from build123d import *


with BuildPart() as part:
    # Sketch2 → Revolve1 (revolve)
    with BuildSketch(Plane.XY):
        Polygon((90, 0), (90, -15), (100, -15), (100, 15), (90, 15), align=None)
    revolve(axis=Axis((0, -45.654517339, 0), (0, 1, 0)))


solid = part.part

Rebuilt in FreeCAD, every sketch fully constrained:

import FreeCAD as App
import Part
import Sketcher
from FreeCAD import Vector
Q = App.Units.Quantity


def add_polygon(sketch, points):
    """Adds a closed chain of lines whose ends are joined by coincident constraints."""
    first, n = sketch.GeometryCount, len(points)
    for a, b in zip(points, points[1:] + points[:1]):
        sketch.addGeometry(Part.LineSegment(App.Vector(*a, 0), App.Vector(*b, 0)), False)
    for i in range(n):
        sketch.addConstraint(Sketcher.Constraint("Coincident", first + i, 2, first + (i + 1) % n, 1))

doc = App.newDocument("Part")
params = doc.addObject("Spreadsheet::Sheet", "Params")
for row, (alias, value) in enumerate([
    ("sketch1_width", "10 mm"),
    ("sketch1_height", "30 mm"),
    ("revolution_angle", "360 deg"),
], start=1):
    params.set(f"A{row}", alias)
    params.set(f"B{row}", "=" + value)
    params.setAlias(f"B{row}", alias)

body = doc.addObject("PartDesign::Body", "Body")

# Sketch on XY plane
sketch1 = body.newObject("Sketcher::SketchObject", "Sketch")
sketch1.AttachmentSupport = (doc.getObject("XY_Plane"), [""])
sketch1.MapMode = "FlatFace"
add_polygon(sketch1, [(90, -15), (100, -15), (100, 15), (90, 15)])  # lines 0-3
sketch1.addConstraint([
    Sketcher.Constraint("Horizontal", 0),
    Sketcher.Constraint("Vertical", 1),
    Sketcher.Constraint("Horizontal", 2),
    Sketcher.Constraint("Vertical", 3),
    Sketcher.Constraint("DistanceX", 0, 1, 0, 2, Q("10 mm")),
    Sketcher.Constraint("DistanceY", 1, 1, 1, 2, Q("30 mm")),
    Sketcher.Constraint("DistanceX", -1, 1, 0, 2, Q("100 mm")),
    Sketcher.Constraint("DistanceY", 0, 2, -1, 1, Q("15 mm")),
])
sketch1.setExpression("Constraints[8]", "Params.sketch1_width")
sketch1.setExpression("Constraints[9]", "Params.sketch1_height")
revolution = body.newObject("PartDesign::Revolution", "Revolution")
revolution.Profile = sketch1
revolution.ReferenceAxis = (sketch1, ["V_Axis"])
revolution.setExpression("Angle", "Params.revolution_angle")

doc.recompute()
